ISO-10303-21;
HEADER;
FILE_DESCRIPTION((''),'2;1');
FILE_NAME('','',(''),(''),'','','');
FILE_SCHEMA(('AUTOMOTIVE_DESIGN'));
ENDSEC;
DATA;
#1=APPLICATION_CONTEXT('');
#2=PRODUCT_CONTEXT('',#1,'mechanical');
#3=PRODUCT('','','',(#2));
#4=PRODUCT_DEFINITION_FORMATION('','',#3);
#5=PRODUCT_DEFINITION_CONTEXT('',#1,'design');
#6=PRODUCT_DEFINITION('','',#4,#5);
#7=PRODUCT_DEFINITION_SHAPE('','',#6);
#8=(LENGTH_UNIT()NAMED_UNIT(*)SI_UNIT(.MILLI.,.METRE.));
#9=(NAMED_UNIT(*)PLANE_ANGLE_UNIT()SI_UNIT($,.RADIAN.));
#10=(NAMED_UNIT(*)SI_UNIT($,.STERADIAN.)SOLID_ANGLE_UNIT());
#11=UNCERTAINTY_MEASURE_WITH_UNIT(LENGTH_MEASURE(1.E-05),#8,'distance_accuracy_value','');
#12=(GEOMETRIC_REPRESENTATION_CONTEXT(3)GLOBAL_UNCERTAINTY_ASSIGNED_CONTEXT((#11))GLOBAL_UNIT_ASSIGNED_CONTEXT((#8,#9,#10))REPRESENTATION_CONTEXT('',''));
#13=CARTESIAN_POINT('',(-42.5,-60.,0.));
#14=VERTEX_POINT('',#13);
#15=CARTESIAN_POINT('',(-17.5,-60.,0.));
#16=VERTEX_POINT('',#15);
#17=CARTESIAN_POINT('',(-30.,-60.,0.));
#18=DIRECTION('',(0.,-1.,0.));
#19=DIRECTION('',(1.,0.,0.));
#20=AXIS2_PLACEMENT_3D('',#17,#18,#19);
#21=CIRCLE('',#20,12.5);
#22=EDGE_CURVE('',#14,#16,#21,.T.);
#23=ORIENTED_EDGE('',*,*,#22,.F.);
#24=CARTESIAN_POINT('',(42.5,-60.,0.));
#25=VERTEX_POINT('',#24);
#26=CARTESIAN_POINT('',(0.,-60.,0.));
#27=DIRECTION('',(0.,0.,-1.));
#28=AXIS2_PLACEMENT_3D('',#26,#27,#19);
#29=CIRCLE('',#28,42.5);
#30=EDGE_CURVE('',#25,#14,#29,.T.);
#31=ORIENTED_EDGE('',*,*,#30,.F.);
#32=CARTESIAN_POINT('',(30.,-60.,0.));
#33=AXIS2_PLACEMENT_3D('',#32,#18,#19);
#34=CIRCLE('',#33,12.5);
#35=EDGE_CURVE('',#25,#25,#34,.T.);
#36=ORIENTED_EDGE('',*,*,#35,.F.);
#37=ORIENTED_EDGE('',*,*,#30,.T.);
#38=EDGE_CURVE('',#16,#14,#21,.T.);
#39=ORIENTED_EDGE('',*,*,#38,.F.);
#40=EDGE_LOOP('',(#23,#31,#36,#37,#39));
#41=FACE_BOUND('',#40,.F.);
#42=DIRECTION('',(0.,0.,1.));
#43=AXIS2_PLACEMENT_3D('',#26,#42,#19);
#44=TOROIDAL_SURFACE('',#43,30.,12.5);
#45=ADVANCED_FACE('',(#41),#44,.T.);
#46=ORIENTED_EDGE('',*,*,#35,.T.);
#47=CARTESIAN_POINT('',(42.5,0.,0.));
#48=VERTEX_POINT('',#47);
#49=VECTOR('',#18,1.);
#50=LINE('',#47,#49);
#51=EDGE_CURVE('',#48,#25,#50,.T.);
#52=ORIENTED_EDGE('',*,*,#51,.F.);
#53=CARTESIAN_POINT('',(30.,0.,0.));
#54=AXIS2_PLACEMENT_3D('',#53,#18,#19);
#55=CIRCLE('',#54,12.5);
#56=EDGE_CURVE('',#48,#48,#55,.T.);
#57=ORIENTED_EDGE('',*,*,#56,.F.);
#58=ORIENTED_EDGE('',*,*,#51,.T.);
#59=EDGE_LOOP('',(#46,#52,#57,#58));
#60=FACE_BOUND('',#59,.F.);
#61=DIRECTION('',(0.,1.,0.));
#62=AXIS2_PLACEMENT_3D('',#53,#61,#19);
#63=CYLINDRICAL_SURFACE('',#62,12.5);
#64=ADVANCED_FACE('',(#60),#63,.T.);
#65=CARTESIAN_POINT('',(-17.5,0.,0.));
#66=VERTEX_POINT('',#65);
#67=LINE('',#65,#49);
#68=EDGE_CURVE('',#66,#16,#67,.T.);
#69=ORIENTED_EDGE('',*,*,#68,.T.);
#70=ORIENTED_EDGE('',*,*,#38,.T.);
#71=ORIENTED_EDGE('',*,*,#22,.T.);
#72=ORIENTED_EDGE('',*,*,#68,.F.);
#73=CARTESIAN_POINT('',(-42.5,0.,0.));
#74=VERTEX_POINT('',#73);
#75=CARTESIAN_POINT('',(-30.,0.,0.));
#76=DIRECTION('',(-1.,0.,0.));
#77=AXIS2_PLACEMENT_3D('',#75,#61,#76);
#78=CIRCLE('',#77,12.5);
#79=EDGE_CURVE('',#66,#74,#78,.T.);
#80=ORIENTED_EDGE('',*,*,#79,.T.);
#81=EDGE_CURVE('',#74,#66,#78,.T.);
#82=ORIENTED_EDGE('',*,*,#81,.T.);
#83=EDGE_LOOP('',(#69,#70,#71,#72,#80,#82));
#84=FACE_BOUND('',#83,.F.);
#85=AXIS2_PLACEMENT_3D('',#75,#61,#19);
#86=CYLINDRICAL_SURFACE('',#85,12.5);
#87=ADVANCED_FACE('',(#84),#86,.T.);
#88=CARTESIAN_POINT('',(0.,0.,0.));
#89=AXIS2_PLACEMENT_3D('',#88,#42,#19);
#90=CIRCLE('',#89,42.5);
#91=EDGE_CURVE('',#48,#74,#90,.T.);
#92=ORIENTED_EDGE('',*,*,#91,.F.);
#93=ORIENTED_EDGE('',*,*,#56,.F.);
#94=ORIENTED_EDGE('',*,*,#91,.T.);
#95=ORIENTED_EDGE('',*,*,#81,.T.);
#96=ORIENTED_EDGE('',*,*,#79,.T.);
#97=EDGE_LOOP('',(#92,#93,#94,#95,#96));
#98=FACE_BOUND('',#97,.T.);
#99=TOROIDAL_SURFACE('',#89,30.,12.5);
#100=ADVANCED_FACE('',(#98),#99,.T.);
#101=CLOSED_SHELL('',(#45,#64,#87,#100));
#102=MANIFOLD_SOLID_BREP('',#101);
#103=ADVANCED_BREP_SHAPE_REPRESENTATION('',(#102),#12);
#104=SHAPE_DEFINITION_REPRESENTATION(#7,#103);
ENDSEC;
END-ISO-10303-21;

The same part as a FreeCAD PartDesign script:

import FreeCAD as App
import Part
import Sketcher
from FreeCAD import Vector
Q = App.Units.Quantity

doc = App.newDocument("Part")
params = doc.addObject("Spreadsheet::Sheet", "Params")
for row, (alias, value) in enumerate([
    ("sketch1_diameter", "25 mm"),
    ("revolution_angle", "180 deg"),
    ("sketch2_diameter", "25 mm"),
    ("pad1_length", "60 mm"),
    ("sketch3_diameter", "25 mm"),
    ("revolution2_angle", "180 deg"),
], start=1):
    params.set(f"A{row}", alias)
    params.set(f"B{row}", "=" + value)
    params.setAlias(f"B{row}", alias)

body = doc.addObject("PartDesign::Body", "Body")

# Sketch on XZ plane
sketch1 = body.newObject("Sketcher::SketchObject", "Sketch")
sketch1.AttachmentSupport = (doc.getObject("XZ_Plane"), [""])
sketch1.MapMode = "FlatFace"
sketch1.addGeometry(Part.Circle(Vector(30, 0, 0), Vector(0, 0, 1), 12.5), False)
sketch1.addConstraint([
    Sketcher.Constraint("PointOnObject", 0, 3, -1),
    Sketcher.Constraint("Diameter", 0, Q("25 mm")),
    Sketcher.Constraint("DistanceX", -1, 1, 0, 3, Q("30 mm")),
])
sketch1.setExpression("Constraints[1]", "Params.sketch1_diameter")
revolution = body.newObject("PartDesign::Revolution", "Revolution")
revolution.Profile = sketch1
revolution.ReferenceAxis = (sketch1, ["V_Axis"])
revolution.setExpression("Angle", "Params.revolution_angle")

# Sketch on XZ plane
sketch2 = body.newObject("Sketcher::SketchObject", "Sketch001")
sketch2.AttachmentSupport = (doc.getObject("XZ_Plane"), [""])
sketch2.MapMode = "FlatFace"
sketch2.addGeometry([
    Part.Circle(Vector(30, 0, 0), Vector(0, 0, 1), 12.5),
    Part.Circle(Vector(-30, 0, 0), Vector(0, 0, 1), 12.5),
], False)
sketch2.addConstraint([
    Sketcher.Constraint("Equal", 0, 1),
    Sketcher.Constraint("Symmetric", 0, 3, 1, 3, -1, 1),
    Sketcher.Constraint("PointOnObject", 0, 3, -1),
    Sketcher.Constraint("Diameter", 0, Q("25 mm")),
    Sketcher.Constraint("DistanceX", -1, 1, 0, 3, Q("30 mm")),
])
sketch2.setExpression("Constraints[3]", "Params.sketch2_diameter")
pad1 = body.newObject("PartDesign::Pad", "Pad")
pad1.Profile = sketch2
pad1.setExpression("Length", "Params.pad1_length")

# Sketch on XZ plane
sketch3 = body.newObject("Sketcher::SketchObject", "Sketch002")
sketch3.AttachmentSupport = (doc.getObject("XZ_Plane"), [""])
sketch3.MapMode = "FlatFace"
sketch3.AttachmentOffset = App.Placement(Vector(0, 0, 60), App.Rotation())
sketch3.addGeometry(Part.Circle(Vector(30, 0, 0), Vector(0, 0, 1), 12.5), False)
sketch3.addConstraint([
    Sketcher.Constraint("PointOnObject", 0, 3, -1),
    Sketcher.Constraint("Diameter", 0, Q("25 mm")),
    Sketcher.Constraint("DistanceX", -1, 1, 0, 3, Q("30 mm")),
])
sketch3.setExpression("Constraints[1]", "Params.sketch3_diameter")
revolution2 = body.newObject("PartDesign::Revolution", "Revolution001")
revolution2.Profile = sketch3
revolution2.ReferenceAxis = (sketch3, ["V_Axis"])
revolution2.setExpression("Angle", "Params.revolution2_angle")
revolution2.Reversed = True

doc.recompute()
